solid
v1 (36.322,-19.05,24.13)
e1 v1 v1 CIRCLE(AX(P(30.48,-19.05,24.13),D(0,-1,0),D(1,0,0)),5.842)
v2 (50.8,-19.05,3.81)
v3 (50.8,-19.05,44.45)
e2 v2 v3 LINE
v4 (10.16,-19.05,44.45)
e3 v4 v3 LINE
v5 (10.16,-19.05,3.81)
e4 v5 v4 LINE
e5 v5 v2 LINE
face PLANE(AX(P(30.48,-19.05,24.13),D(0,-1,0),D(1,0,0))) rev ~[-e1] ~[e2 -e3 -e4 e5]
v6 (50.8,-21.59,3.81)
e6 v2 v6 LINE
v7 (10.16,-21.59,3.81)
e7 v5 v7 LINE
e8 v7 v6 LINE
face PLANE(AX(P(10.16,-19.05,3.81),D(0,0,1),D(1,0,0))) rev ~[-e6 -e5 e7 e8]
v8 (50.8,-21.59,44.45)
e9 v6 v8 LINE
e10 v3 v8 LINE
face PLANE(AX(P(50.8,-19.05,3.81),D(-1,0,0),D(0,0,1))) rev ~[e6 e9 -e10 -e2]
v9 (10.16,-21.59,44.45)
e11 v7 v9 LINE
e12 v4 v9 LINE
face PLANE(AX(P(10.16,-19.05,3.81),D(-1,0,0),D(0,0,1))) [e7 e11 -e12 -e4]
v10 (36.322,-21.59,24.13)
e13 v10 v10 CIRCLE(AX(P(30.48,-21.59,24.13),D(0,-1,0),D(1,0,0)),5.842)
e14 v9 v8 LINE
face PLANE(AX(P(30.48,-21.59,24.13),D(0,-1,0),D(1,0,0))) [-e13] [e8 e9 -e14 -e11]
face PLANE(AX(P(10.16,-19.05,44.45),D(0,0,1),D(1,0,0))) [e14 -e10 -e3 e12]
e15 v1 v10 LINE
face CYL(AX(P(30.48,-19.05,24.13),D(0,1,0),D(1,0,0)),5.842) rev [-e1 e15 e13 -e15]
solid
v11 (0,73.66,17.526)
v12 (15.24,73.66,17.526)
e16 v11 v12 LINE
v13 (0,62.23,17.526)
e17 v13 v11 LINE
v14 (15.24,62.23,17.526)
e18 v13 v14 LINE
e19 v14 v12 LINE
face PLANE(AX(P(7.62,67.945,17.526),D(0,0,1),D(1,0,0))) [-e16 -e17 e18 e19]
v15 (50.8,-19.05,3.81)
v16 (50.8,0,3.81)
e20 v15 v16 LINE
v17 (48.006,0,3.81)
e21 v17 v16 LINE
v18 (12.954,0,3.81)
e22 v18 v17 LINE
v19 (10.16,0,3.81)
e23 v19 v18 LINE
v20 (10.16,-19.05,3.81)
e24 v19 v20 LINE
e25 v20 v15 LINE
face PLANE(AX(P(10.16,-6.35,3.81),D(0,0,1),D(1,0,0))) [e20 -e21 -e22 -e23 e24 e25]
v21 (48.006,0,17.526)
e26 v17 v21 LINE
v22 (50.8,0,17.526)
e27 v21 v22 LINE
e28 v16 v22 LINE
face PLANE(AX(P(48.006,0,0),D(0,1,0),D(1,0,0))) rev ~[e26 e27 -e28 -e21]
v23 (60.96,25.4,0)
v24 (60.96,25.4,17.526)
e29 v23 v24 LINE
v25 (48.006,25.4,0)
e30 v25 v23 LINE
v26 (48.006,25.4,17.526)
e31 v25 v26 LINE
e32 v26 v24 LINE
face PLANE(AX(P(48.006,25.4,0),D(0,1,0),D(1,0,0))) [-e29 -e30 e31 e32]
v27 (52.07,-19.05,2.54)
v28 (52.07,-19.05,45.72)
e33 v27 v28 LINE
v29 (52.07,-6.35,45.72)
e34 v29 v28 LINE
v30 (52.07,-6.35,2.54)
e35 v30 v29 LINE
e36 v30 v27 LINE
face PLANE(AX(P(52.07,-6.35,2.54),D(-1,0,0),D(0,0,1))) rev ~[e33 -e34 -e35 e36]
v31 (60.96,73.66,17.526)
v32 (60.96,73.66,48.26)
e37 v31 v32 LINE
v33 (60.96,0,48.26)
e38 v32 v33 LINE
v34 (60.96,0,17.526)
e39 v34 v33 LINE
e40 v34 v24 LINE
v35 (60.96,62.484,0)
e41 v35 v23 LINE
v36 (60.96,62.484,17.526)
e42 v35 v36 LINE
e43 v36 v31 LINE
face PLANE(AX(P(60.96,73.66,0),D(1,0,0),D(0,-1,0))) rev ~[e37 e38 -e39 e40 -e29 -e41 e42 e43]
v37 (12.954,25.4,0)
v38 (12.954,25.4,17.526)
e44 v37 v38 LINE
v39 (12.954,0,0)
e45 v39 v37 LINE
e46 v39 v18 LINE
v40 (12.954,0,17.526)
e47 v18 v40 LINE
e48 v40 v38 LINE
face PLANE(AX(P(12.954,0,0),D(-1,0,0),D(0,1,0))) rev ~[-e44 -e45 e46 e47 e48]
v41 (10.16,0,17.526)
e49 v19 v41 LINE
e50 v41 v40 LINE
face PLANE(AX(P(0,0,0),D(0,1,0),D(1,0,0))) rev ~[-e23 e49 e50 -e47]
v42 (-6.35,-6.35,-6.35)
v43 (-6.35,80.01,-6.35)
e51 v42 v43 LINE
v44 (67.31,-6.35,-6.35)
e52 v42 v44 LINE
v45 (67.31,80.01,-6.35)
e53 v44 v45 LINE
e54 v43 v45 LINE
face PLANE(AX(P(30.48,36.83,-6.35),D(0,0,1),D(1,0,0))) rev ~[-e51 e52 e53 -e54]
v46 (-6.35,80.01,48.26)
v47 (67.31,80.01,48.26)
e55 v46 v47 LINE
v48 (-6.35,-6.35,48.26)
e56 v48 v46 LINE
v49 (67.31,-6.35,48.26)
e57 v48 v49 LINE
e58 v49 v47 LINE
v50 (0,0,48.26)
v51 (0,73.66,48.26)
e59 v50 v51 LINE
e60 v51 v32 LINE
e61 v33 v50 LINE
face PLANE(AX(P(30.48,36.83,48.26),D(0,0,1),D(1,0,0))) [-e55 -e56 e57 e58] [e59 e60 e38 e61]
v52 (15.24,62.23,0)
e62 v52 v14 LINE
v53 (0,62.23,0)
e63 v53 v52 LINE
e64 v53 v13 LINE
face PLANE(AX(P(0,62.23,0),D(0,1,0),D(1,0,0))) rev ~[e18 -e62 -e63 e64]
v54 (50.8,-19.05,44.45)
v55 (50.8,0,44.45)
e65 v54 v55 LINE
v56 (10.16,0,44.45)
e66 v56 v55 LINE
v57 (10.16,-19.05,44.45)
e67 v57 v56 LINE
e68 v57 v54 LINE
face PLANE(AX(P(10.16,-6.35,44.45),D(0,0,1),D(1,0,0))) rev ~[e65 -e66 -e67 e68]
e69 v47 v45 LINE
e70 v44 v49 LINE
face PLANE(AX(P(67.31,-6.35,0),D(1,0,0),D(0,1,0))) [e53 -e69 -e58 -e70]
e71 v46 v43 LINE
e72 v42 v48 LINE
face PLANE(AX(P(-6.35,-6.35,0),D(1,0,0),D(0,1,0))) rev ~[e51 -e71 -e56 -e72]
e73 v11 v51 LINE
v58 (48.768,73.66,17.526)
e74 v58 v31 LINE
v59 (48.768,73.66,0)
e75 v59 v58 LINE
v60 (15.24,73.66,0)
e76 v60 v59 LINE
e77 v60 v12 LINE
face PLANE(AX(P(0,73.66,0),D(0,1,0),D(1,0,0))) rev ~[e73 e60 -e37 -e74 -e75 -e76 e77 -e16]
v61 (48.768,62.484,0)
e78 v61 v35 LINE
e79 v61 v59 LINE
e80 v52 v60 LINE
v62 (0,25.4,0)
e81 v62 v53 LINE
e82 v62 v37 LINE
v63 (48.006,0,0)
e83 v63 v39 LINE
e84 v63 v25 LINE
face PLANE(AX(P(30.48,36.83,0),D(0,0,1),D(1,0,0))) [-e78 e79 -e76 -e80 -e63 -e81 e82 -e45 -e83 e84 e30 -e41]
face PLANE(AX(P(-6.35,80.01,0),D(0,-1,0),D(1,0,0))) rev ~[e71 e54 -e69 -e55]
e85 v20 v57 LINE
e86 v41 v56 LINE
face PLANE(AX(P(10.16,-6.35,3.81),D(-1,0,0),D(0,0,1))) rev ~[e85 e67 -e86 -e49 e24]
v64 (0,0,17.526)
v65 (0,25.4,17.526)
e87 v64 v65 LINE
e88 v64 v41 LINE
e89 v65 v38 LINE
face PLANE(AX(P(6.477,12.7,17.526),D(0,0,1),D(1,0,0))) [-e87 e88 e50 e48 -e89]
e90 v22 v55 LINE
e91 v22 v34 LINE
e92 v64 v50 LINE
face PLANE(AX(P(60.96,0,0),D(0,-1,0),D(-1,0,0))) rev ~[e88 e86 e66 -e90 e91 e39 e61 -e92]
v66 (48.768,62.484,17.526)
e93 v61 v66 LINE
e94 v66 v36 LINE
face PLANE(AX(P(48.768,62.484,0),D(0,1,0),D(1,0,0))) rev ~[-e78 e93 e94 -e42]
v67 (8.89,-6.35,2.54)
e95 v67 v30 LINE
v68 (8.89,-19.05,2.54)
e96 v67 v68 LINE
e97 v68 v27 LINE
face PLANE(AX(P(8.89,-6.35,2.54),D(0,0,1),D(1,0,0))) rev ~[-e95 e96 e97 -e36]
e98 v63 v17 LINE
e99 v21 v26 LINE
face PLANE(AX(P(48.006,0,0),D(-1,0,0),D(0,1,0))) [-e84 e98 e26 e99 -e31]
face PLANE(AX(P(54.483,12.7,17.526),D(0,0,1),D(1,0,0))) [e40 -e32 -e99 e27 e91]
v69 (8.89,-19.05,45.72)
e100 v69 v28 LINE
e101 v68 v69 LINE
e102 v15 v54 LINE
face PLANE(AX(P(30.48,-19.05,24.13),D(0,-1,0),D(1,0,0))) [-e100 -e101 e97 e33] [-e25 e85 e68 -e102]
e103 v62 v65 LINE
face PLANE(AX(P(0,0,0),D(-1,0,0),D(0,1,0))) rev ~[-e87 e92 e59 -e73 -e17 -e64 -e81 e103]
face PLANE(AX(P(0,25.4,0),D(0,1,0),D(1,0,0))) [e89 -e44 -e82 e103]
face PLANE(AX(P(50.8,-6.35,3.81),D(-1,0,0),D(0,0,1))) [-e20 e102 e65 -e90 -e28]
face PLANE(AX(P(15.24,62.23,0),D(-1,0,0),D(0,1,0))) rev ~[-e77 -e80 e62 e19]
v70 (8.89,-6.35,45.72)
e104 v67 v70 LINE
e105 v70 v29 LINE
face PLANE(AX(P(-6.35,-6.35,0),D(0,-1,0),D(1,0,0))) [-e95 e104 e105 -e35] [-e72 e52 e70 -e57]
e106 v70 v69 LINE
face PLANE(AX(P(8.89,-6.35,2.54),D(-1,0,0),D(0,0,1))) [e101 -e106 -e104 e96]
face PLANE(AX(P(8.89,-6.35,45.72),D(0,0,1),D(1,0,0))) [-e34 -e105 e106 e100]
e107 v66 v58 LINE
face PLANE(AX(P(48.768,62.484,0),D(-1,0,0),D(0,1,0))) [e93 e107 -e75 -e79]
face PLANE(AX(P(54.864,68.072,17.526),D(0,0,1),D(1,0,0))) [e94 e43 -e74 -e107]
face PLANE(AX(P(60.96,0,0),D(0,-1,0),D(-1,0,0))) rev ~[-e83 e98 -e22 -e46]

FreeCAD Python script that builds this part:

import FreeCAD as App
import Part
import Sketcher
Q = App.Units.Quantity


def add_polygon(sketch, points):
    """Adds a closed chain of lines whose ends are joined by coincident constraints."""
    first, n = sketch.GeometryCount, len(points)
    for a, b in zip(points, points[1:] + points[:1]):
        sketch.addGeometry(Part.LineSegment(App.Vector(*a, 0), App.Vector(*b, 0)), False)
    for i in range(n):
        sketch.addConstraint(Sketcher.Constraint("Coincident", first + i, 2, first + (i + 1) % n, 1))

doc = App.newDocument("Part")
params = doc.addObject("Spreadsheet::Sheet", "Params")
for row, (alias, value) in enumerate([
    ("sketch1_width", "0.6 in"),
    ("sketch1_height", "0.45 in"),
    ("pad1_length", "0.69 in"),
    ("sketch2_width", "0.48 in"),
    ("sketch2_height", "0.44 in"),
    ("pad2_length", "0.69 in"),
    ("sketch3_height", "1 in"),
    ("sketch3_width", "0.51 in"),
    ("pad3_length", "0.69 in"),
    ("sketch4_height", "1 in"),
    ("sketch4_width", "0.51 in"),
    ("pad4_length", "0.69 in"),
    ("sketch5_width", "2.9 in"),
    ("sketch5_width2", "2.4 in"),
    ("sketch5_height", "3.4 in"),
    ("pad5_length", "1.9 in"),
    ("sketch6_width", "1.6 in"),
    ("pocket1_length", "0.251 in"),
    ("sketch7_width", "2.9 in"),
    ("sketch7_height", "3.4 in"),
    ("pad6_length", "0.25 in"),
    ("sketch8_width", "1.7 in"),
    ("sketch8_width2", "1.6 in"),
    ("pad7_length", "0.5 in"),
    ("sketch9_diameter", "0.46 in"),
    ("sketch9_width", "1.6 in"),
    ("pad8_length", "0.1 in"),
], start=1):
    params.set(f"A{row}", alias)
    params.set(f"B{row}", "=" + value)
    params.setAlias(f"B{row}", alias)

body = doc.addObject("PartDesign::Body", "Body")

# Sketch on XY plane
sketch1 = body.newObject("Sketcher::SketchObject", "Sketch")
sketch1.AttachmentSupport = (doc.getObject("XY_Plane"), [""])
sketch1.MapMode = "FlatFace"
add_polygon(sketch1, [(0, 73.66), (0, 62.23), (15.24, 62.23), (15.24, 73.66)])  # lines 0-3
sketch1.addConstraint([
    Sketcher.Constraint("Vertical", 0),
    Sketcher.Constraint("Horizontal", 1),
    Sketcher.Constraint("Vertical", 2),
    Sketcher.Constraint("Horizontal", 3),
    Sketcher.Constraint("PointOnObject", 0, 2, -2),
    Sketcher.Constraint("DistanceX", 1, 1, 1, 2, Q("0.6 in")),
    Sketcher.Constraint("DistanceY", 0, 2, 0, 1, Q("0.45 in")),
    Sketcher.Constraint("DistanceY", -1, 1, 2, 2, Q("2.9 in")),
])
sketch1.setExpression("Constraints[9]", "Params.sketch1_width")
sketch1.setExpression("Constraints[10]", "Params.sketch1_height")
pad1 = body.newObject("PartDesign::Pad", "Pad")
pad1.Profile = sketch1
pad1.setExpression("Length", "Params.pad1_length")
body2 = doc.addObject("PartDesign::Body", "Body001")

# Sketch on XY plane
sketch2 = body2.newObject("Sketcher::SketchObject", "Sketch001")
sketch2.AttachmentSupport = (doc.getObject("XY_Plane001"), [""])
sketch2.MapMode = "FlatFace"
add_polygon(sketch2, [(48.768, 73.66), (48.768, 62.484), (60.96, 62.484), (60.96, 73.66)])  # lines 0-3
sketch2.addConstraint([
    Sketcher.Constraint("Vertical", 0),
    Sketcher.Constraint("Horizontal", 1),
    Sketcher.Constraint("Vertical", 2),
    Sketcher.Constraint("Horizontal", 3),
    Sketcher.Constraint("DistanceX", 1, 1, 1, 2, Q("0.48 in")),
    Sketcher.Constraint("DistanceY", 0, 2, 0, 1, Q("0.44 in")),
    Sketcher.Constraint("DistanceX", -1, 1, 1, 2, Q("2.4 in")),
    Sketcher.Constraint("DistanceY", -1, 1, 2, 2, Q("2.9 in")),
])
sketch2.setExpression("Constraints[8]", "Params.sketch2_width")
sketch2.setExpression("Constraints[9]", "Params.sketch2_height")
pad2 = body2.newObject("PartDesign::Pad", "Pad001")
pad2.Profile = sketch2
pad2.setExpression("Length", "Params.pad2_length")
body3 = doc.addObject("PartDesign::Body", "Body002")

# Sketch on XY plane
sketch3 = body3.newObject("Sketcher::SketchObject", "Sketch002")
sketch3.AttachmentSupport = (doc.getObject("XY_Plane002"), [""])
sketch3.MapMode = "FlatFace"
add_polygon(sketch3, [(48.006, 25.4), (48.006, 0), (60.96, 0), (60.96, 25.4)])  # lines 0-3
sketch3.addConstraint([
    Sketcher.Constraint("Vertical", 0),
    Sketcher.Constraint("Horizontal", 1),
    Sketcher.Constraint("Vertical", 2),
    Sketcher.Constraint("Horizontal", 3),
    Sketcher.Constraint("PointOnObject", 0, 2, -1),
    Sketcher.Constraint("DistanceY", 0, 2, 0, 1, Q("1 in")),
    Sketcher.Constraint("DistanceX", 1, 1, 1, 2, Q("0.51 in")),
    Sketcher.Constraint("DistanceX", -1, 1, 1, 2, Q("2.4 in")),
])
sketch3.setExpression("Constraints[9]", "Params.sketch3_height")
sketch3.setExpression("Constraints[10]", "Params.sketch3_width")
pad3 = body3.newObject("PartDesign::Pad", "Pad002")
pad3.Profile = sketch3
pad3.setExpression("Length", "Params.pad3_length")
body4 = doc.addObject("PartDesign::Body", "Body003")

# Sketch on XY plane
sketch4 = body4.newObject("Sketcher::SketchObject", "Sketch003")
sketch4.AttachmentSupport = (doc.getObject("XY_Plane003"), [""])
sketch4.MapMode = "FlatFace"
add_polygon(sketch4, [(0, 25.4), (0, 0), (12.954, 0), (12.954, 25.4)])  # lines 0-3
sketch4.addConstraint([
    Sketcher.Constraint("Vertical", 0),
    Sketcher.Constraint("Horizontal", 1),
    Sketcher.Constraint("Vertical", 2),
    Sketcher.Constraint("Horizontal", 3),
    Sketcher.Constraint("Coincident", 0, 2, -1, 1),
    Sketcher.Constraint("DistanceY", 0, 2, 0, 1, Q("1 in")),
    Sketcher.Constraint("DistanceX", 1, 1, 1, 2, Q("0.51 in")),
])
sketch4.setExpression("Constraints[9]", "Params.sketch4_height")
sketch4.setExpression("Constraints[10]", "Params.sketch4_width")
pad4 = body4.newObject("PartDesign::Pad", "Pad003")
pad4.Profile = sketch4
pad4.setExpression("Length", "Params.pad4_length")
body5 = doc.addObject("PartDesign::Body", "Body004")

# Sketch on XY plane
sketch5 = body5.newObject("Sketcher::SketchObject", "Sketch004")
sketch5.AttachmentSupport = (doc.getObject("XY_Plane004"), [""])
sketch5.MapMode = "FlatFace"
add_polygon(sketch5, [(-6.35, 80.01), (-6.35, -6.35), (67.31, -6.35), (67.31, 80.01)])  # lines 0-3
add_polygon(sketch5, [(60.96, 0), (0, 0), (0, 73.66), (60.96, 73.66)])  # lines 4-7
sketch5.addConstraint([
    Sketcher.Constraint("Vertical", 0),
    Sketcher.Constraint("Horizontal", 1),
    Sketcher.Constraint("Vertical", 2),
    Sketcher.Constraint("Horizontal", 3),
    Sketcher.Constraint("Horizontal", 4),
    Sketcher.Constraint("Vertical", 5),
    Sketcher.Constraint("Horizontal", 6),
    Sketcher.Constraint("Vertical", 7),
    Sketcher.Constraint("Coincident", 4, 2, -1, 1),
    Sketcher.Constraint("Equal", 3, 5),
    Sketcher.Constraint("DistanceX", 1, 1, 1, 2, Q("2.9 in")),
    Sketcher.Constraint("DistanceX", 4, 2, 4, 1, Q("2.4 in")),
    Sketcher.Constraint("DistanceY", 0, 2, 0, 1, Q("3.4 in")),
    Sketcher.Constraint("DistanceX", 0, 2, -1, 1, Q("0.25 in")),
    Sketcher.Constraint("DistanceY", 0, 2, -1, 1, Q("0.25 in")),
])
sketch5.setExpression("Constraints[18]", "Params.sketch5_width")
sketch5.setExpression("Constraints[19]", "Params.sketch5_width2")
sketch5.setExpression("Constraints[20]", "Params.sketch5_height")
pad5 = body5.newObject("PartDesign::Pad", "Pad004")
pad5.Profile = sketch5
pad5.setExpression("Length", "Params.pad5_length")

# Sketch on XZ plane
sketch6 = body5.newObject("Sketcher::SketchObject", "Sketch005")
sketch6.AttachmentSupport = (doc.getObject("XZ_Plane004"), [""])
sketch6.MapMode = "FlatFace"
sketch6.AttachmentOffset = App.Placement(App.Vector(0, 0, 0.25 * 25.4), App.Rotation())
add_polygon(sketch6, [(10.16, 44.45), (10.16, 3.81), (50.8, 3.81), (50.8, 44.45)])  # lines 0-3
sketch6.addConstraint([
    Sketcher.Constraint("Vertical", 0),
    Sketcher.Constraint("Horizontal", 1),
    Sketcher.Constraint("Vertical", 2),
    Sketcher.Constraint("Horizontal", 3),
    Sketcher.Constraint("Equal", 3, 0),
    Sketcher.Constraint("DistanceX", 1, 1, 1, 2, Q("1.6 in")),
    Sketcher.Constraint("DistanceX", -1, 1, 1, 2, Q("2 in")),
    Sketcher.Constraint("DistanceY", -1, 1, 0, 2, Q("0.15 in")),
])
sketch6.setExpression("Constraints[9]", "Params.sketch6_width")
pocket1 = body5.newObject("PartDesign::Pocket", "Pocket")
pocket1.Profile = sketch6
pocket1.setExpression("Length", "Params.pocket1_length")
body6 = doc.addObject("PartDesign::Body", "Body005")

# Sketch on XY plane
sketch7 = body6.newObject("Sketcher::SketchObject", "Sketch006")
sketch7.AttachmentSupport = (doc.getObject("XY_Plane005"), [""])
sketch7.MapMode = "FlatFace"
add_polygon(sketch7, [(-6.35, 80.01), (-6.35, -6.35), (67.31, -6.35), (67.31, 80.01)])  # lines 0-3
sketch7.addConstraint([
    Sketcher.Constraint("Vertical", 0),
    Sketcher.Constraint("Horizontal", 1),
    Sketcher.Constraint("Vertical", 2),
    Sketcher.Constraint("Horizontal", 3),
    Sketcher.Constraint("DistanceX", 1, 1, 1, 2, Q("2.9 in")),
    Sketcher.Constraint("DistanceY", 0, 2, 0, 1, Q("3.4 in")),
    Sketcher.Constraint("DistanceX", 0, 2, -1, 1, Q("0.25 in")),
    Sketcher.Constraint("DistanceY", 0, 2, -1, 1, Q("0.25 in")),
])
sketch7.setExpression("Constraints[8]", "Params.sketch7_width")
sketch7.setExpression("Constraints[9]", "Params.sketch7_height")
pad6 = body6.newObject("PartDesign::Pad", "Pad005")
pad6.Profile = sketch7
pad6.setExpression("Length", "Params.pad6_length")
pad6.Reversed = True
body.AllowCompound = True
doc.recompute()

boolean = body.newObject("PartDesign::Boolean", "Boolean")
boolean.Type = "Fuse"
boolean.addObjects([body2])
doc.recompute()

boolean2 = body.newObject("PartDesign::Boolean", "Boolean001")
boolean2.Type = "Fuse"
boolean2.addObjects([body3])
doc.recompute()

boolean3 = body.newObject("PartDesign::Boolean", "Boolean002")
boolean3.Type = "Fuse"
boolean3.addObjects([body4])
doc.recompute()

boolean4 = body.newObject("PartDesign::Boolean", "Boolean003")
boolean4.Type = "Fuse"
boolean4.addObjects([body5])
doc.recompute()

boolean5 = body.newObject("PartDesign::Boolean", "Boolean004")
boolean5.Type = "Fuse"
boolean5.addObjects([body6])

# Sketch on XZ plane
sketch8 = body.newObject("Sketcher::SketchObject", "Sketch007")
sketch8.AttachmentSupport = (doc.getObject("XZ_Plane"), [""])
sketch8.MapMode = "FlatFace"
sketch8.AttachmentOffset = App.Placement(App.Vector(0, 0, 0.25 * 25.4), App.Rotation())
add_polygon(sketch8, [(8.89, 45.72), (8.89, 2.54), (52.07, 2.54), (52.07, 45.72)])  # lines 0-3
add_polygon(sketch8, [(50.8, 3.81), (10.16, 3.81), (10.16, 44.45), (50.8, 44.45)])  # lines 4-7
sketch8.addConstraint([
    Sketcher.Constraint("Vertical", 0),
    Sketcher.Constraint("Horizontal", 1),
    Sketcher.Constraint("Vertical", 2),
    Sketcher.Constraint("Horizontal", 3),
    Sketcher.Constraint("Horizontal", 4),
    Sketcher.Constraint("Vertical", 5),
    Sketcher.Constraint("Horizontal", 6),
    Sketcher.Constraint("Vertical", 7),
    Sketcher.Constraint("Equal", 3, 0),
    Sketcher.Constraint("Equal", 6, 5),
    Sketcher.Constraint("DistanceX", 1, 1, 1, 2, Q("1.7 in")),
    Sketcher.Constraint("DistanceX", 4, 2, 4, 1, Q("1.6 in")),
    Sketcher.Constraint("DistanceX", -1, 1, 6, 2, Q("2 in")),
    Sketcher.Constraint("DistanceY", -1, 1, 0, 2, Q("0.1 in")),
    Sketcher.Constraint("DistanceX", -1, 1, 0, 2, Q("0.35 in")),
    Sketcher.Constraint("DistanceY", -1, 1, 4, 2, Q("0.15 in")),
])
sketch8.setExpression("Constraints[18]", "Params.sketch8_width")
sketch8.setExpression("Constraints[19]", "Params.sketch8_width2")
pad7 = body.newObject("PartDesign::Pad", "Pad006")
pad7.Profile = sketch8
pad7.setExpression("Length", "Params.pad7_length")
body7 = doc.addObject("PartDesign::Body", "Body006")

# Sketch on XZ plane
sketch9 = body7.newObject("Sketcher::SketchObject", "Sketch008")
sketch9.AttachmentSupport = (doc.getObject("XZ_Plane006"), [""])
sketch9.MapMode = "FlatFace"
sketch9.AttachmentOffset = App.Placement(App.Vector(0, 0, 0.75 * 25.4), App.Rotation())
add_polygon(sketch9, [(10.16, 44.45), (10.16, 3.81), (50.8, 3.81), (50.8, 44.45)])  # lines 0-3
sketch9.addGeometry(Part.Circle(App.Vector(30.48, 24.13, 0), App.Vector(0, 0, 1), 5.842), False)  # 4
sketch9.addConstraint([
    Sketcher.Constraint("Vertical", 0),
    Sketcher.Constraint("Horizontal", 1),
    Sketcher.Constraint("Vertical", 2),
    Sketcher.Constraint("Horizontal", 3),
    Sketcher.Constraint("Equal", 3, 0),
    Sketcher.Constraint("Diameter", 4, Q("0.46 in")),
    Sketcher.Constraint("DistanceX", 1, 1, 1, 2, Q("1.6 in")),
    Sketcher.Constraint("DistanceX", -1, 1, 1, 2, Q("2 in")),
    Sketcher.Constraint("DistanceX", -1, 1, 4, 3, Q("1.2 in")),
    Sketcher.Constraint("DistanceY", 0, 2, 4, 3, Q("0.8 in")),
    Sketcher.Constraint("DistanceY", -1, 1, 4, 3, Q("0.95 in")),
])
sketch9.setExpression("Constraints[9]", "Params.sketch9_diameter")
sketch9.setExpression("Constraints[10]", "Params.sketch9_width")
pad8 = body7.newObject("PartDesign::Pad", "Pad007")
pad8.Profile = sketch9
pad8.setExpression("Length", "Params.pad8_length")

doc.recompute()
